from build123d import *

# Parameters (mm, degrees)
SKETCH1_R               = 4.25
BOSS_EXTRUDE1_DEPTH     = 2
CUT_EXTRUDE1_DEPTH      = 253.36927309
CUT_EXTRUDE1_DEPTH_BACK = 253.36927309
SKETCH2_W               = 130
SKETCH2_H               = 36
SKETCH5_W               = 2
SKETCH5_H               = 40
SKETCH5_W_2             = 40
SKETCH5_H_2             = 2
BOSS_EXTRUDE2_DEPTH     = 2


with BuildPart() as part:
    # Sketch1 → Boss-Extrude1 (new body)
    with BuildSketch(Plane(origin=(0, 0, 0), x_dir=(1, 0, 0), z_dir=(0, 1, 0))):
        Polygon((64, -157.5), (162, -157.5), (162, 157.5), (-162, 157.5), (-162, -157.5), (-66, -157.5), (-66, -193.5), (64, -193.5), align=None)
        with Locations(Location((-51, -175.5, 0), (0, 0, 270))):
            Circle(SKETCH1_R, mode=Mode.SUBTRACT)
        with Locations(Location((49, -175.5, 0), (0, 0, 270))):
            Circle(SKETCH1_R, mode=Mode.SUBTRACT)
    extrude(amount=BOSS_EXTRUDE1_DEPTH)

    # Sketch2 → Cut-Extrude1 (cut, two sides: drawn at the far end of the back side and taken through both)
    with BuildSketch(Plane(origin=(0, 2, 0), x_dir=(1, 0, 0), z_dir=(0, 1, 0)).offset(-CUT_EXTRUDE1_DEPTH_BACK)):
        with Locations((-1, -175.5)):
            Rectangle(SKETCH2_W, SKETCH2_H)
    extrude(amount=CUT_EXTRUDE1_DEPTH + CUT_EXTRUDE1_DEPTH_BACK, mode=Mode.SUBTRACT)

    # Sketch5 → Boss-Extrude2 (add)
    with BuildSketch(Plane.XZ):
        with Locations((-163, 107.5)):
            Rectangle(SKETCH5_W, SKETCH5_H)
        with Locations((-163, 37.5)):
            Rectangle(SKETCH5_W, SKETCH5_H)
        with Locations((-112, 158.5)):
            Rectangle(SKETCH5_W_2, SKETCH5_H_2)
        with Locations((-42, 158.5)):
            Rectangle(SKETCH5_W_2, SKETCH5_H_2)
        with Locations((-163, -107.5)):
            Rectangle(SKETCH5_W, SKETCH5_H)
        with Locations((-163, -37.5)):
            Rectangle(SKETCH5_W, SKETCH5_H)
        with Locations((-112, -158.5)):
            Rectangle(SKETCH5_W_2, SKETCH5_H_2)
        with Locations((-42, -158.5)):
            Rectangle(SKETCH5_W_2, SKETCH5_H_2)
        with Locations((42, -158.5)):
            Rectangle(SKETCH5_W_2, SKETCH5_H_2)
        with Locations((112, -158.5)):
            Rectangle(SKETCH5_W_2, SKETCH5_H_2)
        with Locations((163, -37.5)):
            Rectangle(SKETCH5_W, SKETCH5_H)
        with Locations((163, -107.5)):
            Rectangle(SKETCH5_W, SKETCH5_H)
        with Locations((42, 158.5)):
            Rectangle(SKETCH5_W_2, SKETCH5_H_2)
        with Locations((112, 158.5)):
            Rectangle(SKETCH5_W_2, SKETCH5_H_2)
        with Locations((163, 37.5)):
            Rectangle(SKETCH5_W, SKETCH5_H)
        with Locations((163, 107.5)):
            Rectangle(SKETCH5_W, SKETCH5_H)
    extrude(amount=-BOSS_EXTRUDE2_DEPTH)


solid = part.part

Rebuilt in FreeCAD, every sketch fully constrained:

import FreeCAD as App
import Part
import Sketcher

V = App.Vector

doc = App.newDocument("Part")
params = doc.addObject("Spreadsheet::Sheet", "Params")
for row, (alias, value) in enumerate([
    ("sketch1_diameter", "8.5 mm"),
    ("sketch1_width", "98 mm"),
    ("sketch1_width2", "324 mm"),
    ("sketch1_width3", "96 mm"),
    ("sketch1_height", "315 mm"),
    ("pad1_length", "2 mm"),
    ("sketch2_width", "130 mm"),
    ("sketch2_height", "36 mm"),
    ("sketch3_width", "2 mm"),
    ("sketch3_width2", "40 mm"),
    ("pad2_length", "2 mm"),
], start=1):
    params.set(f"A{row}", alias)
    params.set(f"B{row}", "=" + value)
    params.setAlias(f"B{row}", alias)

body = doc.addObject("PartDesign::Body", "Body")

sketch1 = body.newObject("Sketcher::SketchObject", "Sketch")
sketch1.AttachmentSupport = (doc.getObject("XZ_Plane"), [""])
sketch1.MapMode = "FlatFace"
sketch1.addGeometry(Part.LineSegment(V(64, 157.5, 0), V(162, 157.5, 0)), False)
sketch1.addGeometry(Part.LineSegment(V(162, 157.5, 0), V(162, -157.5, 0)), False)
sketch1.addGeometry(Part.LineSegment(V(162, -157.5, 0), V(-162, -157.5, 0)), False)
sketch1.addGeometry(Part.LineSegment(V(-162, -157.5, 0), V(-162, 157.5, 0)), False)
sketch1.addGeometry(Part.LineSegment(V(-162, 157.5, 0), V(-66, 157.5, 0)), False)
sketch1.addGeometry(Part.LineSegment(V(-66, 157.5, 0), V(-66, 193.5, 0)), False)
sketch1.addGeometry(Part.LineSegment(V(-66, 193.5, 0), V(64, 193.5, 0)), False)
sketch1.addGeometry(Part.LineSegment(V(64, 193.5, 0), V(64, 157.5, 0)), False)
sketch1.addGeometry(Part.Circle(V(-51, 175.5, 0), V(0, 0, 1), 4.25), False)
sketch1.addGeometry(Part.Circle(V(49, 175.5, 0), V(0, 0, 1), 4.25), False)
sketch1.addConstraint(Sketcher.Constraint("Coincident", 0, 2, 1, 1))
sketch1.addConstraint(Sketcher.Constraint("Coincident", 1, 2, 2, 1))
sketch1.addConstraint(Sketcher.Constraint("Coincident", 2, 2, 3, 1))
sketch1.addConstraint(Sketcher.Constraint("Coincident", 3, 2, 4, 1))
sketch1.addConstraint(Sketcher.Constraint("Coincident", 4, 2, 5, 1))
sketch1.addConstraint(Sketcher.Constraint("Coincident", 5, 2, 6, 1))
sketch1.addConstraint(Sketcher.Constraint("Coincident", 6, 2, 7, 1))
sketch1.addConstraint(Sketcher.Constraint("Coincident", 7, 2, 0, 1))
sketch1.addConstraint(Sketcher.Constraint("Horizontal", 0))
sketch1.addConstraint(Sketcher.Constraint("Vertical", 1))
sketch1.addConstraint(Sketcher.Constraint("Horizontal", 2))
sketch1.addConstraint(Sketcher.Constraint("Vertical", 3))
sketch1.addConstraint(Sketcher.Constraint("Horizontal", 4))
sketch1.addConstraint(Sketcher.Constraint("Vertical", 5))
sketch1.addConstraint(Sketcher.Constraint("Horizontal", 6))
sketch1.addConstraint(Sketcher.Constraint("Vertical", 7))
sketch1.addConstraint(Sketcher.Constraint("Equal", 8, 9))
sketch1.addConstraint(Sketcher.Constraint("Symmetric", 0, 2, 2, 2, -1, 1))
sketch1.addConstraint(Sketcher.Constraint("Horizontal", 8, 3, 9, 3))
sketch1.addConstraint(Sketcher.Constraint("Horizontal", 0, 2, 3, 2))
sketch1.addConstraint(Sketcher.Constraint("Diameter", 8, 8.5))
sketch1.addConstraint(Sketcher.Constraint("DistanceX", 0, 1, 0, 2, 98.0))
sketch1.addConstraint(Sketcher.Constraint("DistanceX", 2, 2, 2, 1, 324.0))
sketch1.addConstraint(Sketcher.Constraint("DistanceX", 4, 1, 4, 2, 96.0))
sketch1.addConstraint(Sketcher.Constraint("DistanceY", 1, 2, 1, 1, 315.0))
sketch1.addConstraint(Sketcher.Constraint("DistanceY", 5, 1, 5, 2, 36.0))
sketch1.addConstraint(Sketcher.Constraint("DistanceX", 8, 3, -1, 1, 51.0))
sketch1.addConstraint(Sketcher.Constraint("DistanceX", -1, 1, 9, 3, 49.0))
sketch1.addConstraint(Sketcher.Constraint("DistanceY", 0, 2, 9, 3, 18.0))
sketch1.setExpression("Constraints[20]", "Params.sketch1_diameter")
sketch1.setExpression("Constraints[21]", "Params.sketch1_width")
sketch1.setExpression("Constraints[22]", "Params.sketch1_width2")
sketch1.setExpression("Constraints[23]", "Params.sketch1_width3")
sketch1.setExpression("Constraints[24]", "Params.sketch1_height")
pad1 = body.newObject("PartDesign::Pad", "Pad")
pad1.Profile = sketch1
pad1.setExpression("Length", "Params.pad1_length")
pad1.Reversed = True

sketch2 = body.newObject("Sketcher::SketchObject", "Sketch001")
sketch2.AttachmentSupport = (doc.getObject("XZ_Plane"), [""])
sketch2.MapMode = "FlatFace"
sketch2.AttachmentOffset = App.Placement(V(0, 0, -2), App.Rotation())
sketch2.addGeometry(Part.LineSegment(V(-66, 157.5, 0), V(-66, 193.5, 0)), False)
sketch2.addGeometry(Part.LineSegment(V(-66, 193.5, 0), V(64, 193.5, 0)), False)
sketch2.addGeometry(Part.LineSegment(V(64, 193.5, 0), V(64, 157.5, 0)), False)
sketch2.addGeometry(Part.LineSegment(V(64, 157.5, 0), V(-66, 157.5, 0)), False)
sketch2.addConstraint(Sketcher.Constraint("Coincident", 0, 2, 1, 1))
sketch2.addConstraint(Sketcher.Constraint("Coincident", 1, 2, 2, 1))
sketch2.addConstraint(Sketcher.Constraint("Coincident", 2, 2, 3, 1))
sketch2.addConstraint(Sketcher.Constraint("Coincident", 3, 2, 0, 1))
sketch2.addConstraint(Sketcher.Constraint("Vertical", 0))
sketch2.addConstraint(Sketcher.Constraint("Horizontal", 1))
sketch2.addConstraint(Sketcher.Constraint("Vertical", 2))
sketch2.addConstraint(Sketcher.Constraint("Horizontal", 3))
sketch2.addConstraint(Sketcher.Constraint("DistanceX", 1, 1, 1, 2, 130.0))
sketch2.addConstraint(Sketcher.Constraint("DistanceY", 0, 1, 0, 2, 36.0))
sketch2.addConstraint(Sketcher.Constraint("DistanceX", 0, 2, -1, 1, 66.0))
sketch2.addConstraint(Sketcher.Constraint("DistanceY", -1, 1, 0, 2, 193.5))
sketch2.setExpression("Constraints[8]", "Params.sketch2_width")
sketch2.setExpression("Constraints[9]", "Params.sketch2_height")
pocket1 = body.newObject("PartDesign::Pocket", "Pocket")
pocket1.Profile = sketch2
pocket1.Type = "ThroughAll"
pocket1.Midplane = True

sketch3 = body.newObject("Sketcher::SketchObject", "Sketch002")
sketch3.AttachmentSupport = (doc.getObject("XZ_Plane"), [""])
sketch3.MapMode = "FlatFace"
sketch3.addGeometry(Part.LineSegment(V(-164, 127.5, 0), V(-164, 87.5, 0)), False)
sketch3.addGeometry(Part.LineSegment(V(-164, 87.5, 0), V(-162, 87.5, 0)), False)
sketch3.addGeometry(Part.LineSegment(V(-162, 87.5, 0), V(-162, 127.5, 0)), False)
sketch3.addGeometry(Part.LineSegment(V(-162, 127.5, 0), V(-164, 127.5, 0)), False)
sketch3.addGeometry(Part.LineSegment(V(-164, 57.5, 0), V(-164, 17.5, 0)), False)
sketch3.addGeometry(Part.LineSegment(V(-164, 17.5, 0), V(-162, 17.5, 0)), False)
sketch3.addGeometry(Part.LineSegment(V(-162, 17.5, 0), V(-162, 57.5, 0)), False)
sketch3.addGeometry(Part.LineSegment(V(-162, 57.5, 0), V(-164, 57.5, 0)), False)
sketch3.addGeometry(Part.LineSegment(V(-132, 159.5, 0), V(-132, 157.5, 0)), False)
sketch3.addGeometry(Part.LineSegment(V(-132, 157.5, 0), V(-92, 157.5, 0)), False)
sketch3.addGeometry(Part.LineSegment(V(-92, 157.5, 0), V(-92, 159.5, 0)), False)
sketch3.addGeometry(Part.LineSegment(V(-92, 159.5, 0), V(-132, 159.5, 0)), False)
sketch3.addGeometry(Part.LineSegment(V(-62, 159.5, 0), V(-62, 157.5, 0)), False)
sketch3.addGeometry(Part.LineSegment(V(-62, 157.5, 0), V(-22, 157.5, 0)), False)
sketch3.addGeometry(Part.LineSegment(V(-22, 157.5, 0), V(-22, 159.5, 0)), False)
sketch3.addGeometry(Part.LineSegment(V(-22, 159.5, 0), V(-62, 159.5, 0)), False)
sketch3.addGeometry(Part.LineSegment(V(-164, -87.5, 0), V(-164, -127.5, 0)), False)
sketch3.addGeometry(Part.LineSegment(V(-164, -127.5, 0), V(-162, -127.5, 0)), False)
sketch3.addGeometry(Part.LineSegment(V(-162, -127.5, 0), V(-162, -87.5, 0)), False)
sketch3.addGeometry(Part.LineSegment(V(-162, -87.5, 0), V(-164, -87.5, 0)), False)
sketch3.addGeometry(Part.LineSegment(V(-164, -17.5, 0), V(-164, -57.5, 0)), False)
sketch3.addGeometry(Part.LineSegment(V(-164, -57.5, 0), V(-162, -57.5, 0)), False)
sketch3.addGeometry(Part.LineSegment(V(-162, -57.5, 0), V(-162, -17.5, 0)), False)
sketch3.addGeometry(Part.LineSegment(V(-162, -17.5, 0), V(-164, -17.5, 0)), False)
sketch3.addGeometry(Part.LineSegment(V(-132, -157.5, 0), V(-132, -159.5, 0)), False)
sketch3.addGeometry(Part.LineSegment(V(-132, -159.5, 0), V(-92, -159.5, 0)), False)
sketch3.addGeometry(Part.LineSegment(V(-92, -159.5, 0), V(-92, -157.5, 0)), False)
sketch3.addGeometry(Part.LineSegment(V(-92, -157.5, 0), V(-132, -157.5, 0)), False)
sketch3.addGeometry(Part.LineSegment(V(-62, -157.5, 0), V(-62, -159.5, 0)), False)
sketch3.addGeometry(Part.LineSegment(V(-62, -159.5, 0), V(-22, -159.5, 0)), False)
sketch3.addGeometry(Part.LineSegment(V(-22, -159.5, 0), V(-22, -157.5, 0)), False)
sketch3.addGeometry(Part.LineSegment(V(-22, -157.5, 0), V(-62, -157.5, 0)), False)
sketch3.addGeometry(Part.LineSegment(V(22, -157.5, 0), V(22, -159.5, 0)), False)
sketch3.addGeometry(Part.LineSegment(V(22, -159.5, 0), V(62, -159.5, 0)), False)
sketch3.addGeometry(Part.LineSegment(V(62, -159.5, 0), V(62, -157.5, 0)), False)
sketch3.addGeometry(Part.LineSegment(V(62, -157.5, 0), V(22, -157.5, 0)), False)
sketch3.addGeometry(Part.LineSegment(V(92, -157.5, 0), V(92, -159.5, 0)), False)
sketch3.addGeometry(Part.LineSegment(V(92, -159.5, 0), V(132, -159.5, 0)), False)
sketch3.addGeometry(Part.LineSegment(V(132, -159.5, 0), V(132, -157.5, 0)), False)
sketch3.addGeometry(Part.LineSegment(V(132, -157.5, 0), V(92, -157.5, 0)), False)
sketch3.addGeometry(Part.LineSegment(V(162, -17.5, 0), V(162, -57.5, 0)), False)
sketch3.addGeometry(Part.LineSegment(V(162, -57.5, 0), V(164, -57.5, 0)), False)
sketch3.addGeometry(Part.LineSegment(V(164, -57.5, 0), V(164, -17.5, 0)), False)
sketch3.addGeometry(Part.LineSegment(V(164, -17.5, 0), V(162, -17.5, 0)), False)
sketch3.addGeometry(Part.LineSegment(V(162, -87.5, 0), V(162, -127.5, 0)), False)
sketch3.addGeometry(Part.LineSegment(V(162, -127.5, 0), V(164, -127.5, 0)), False)
sketch3.addGeometry(Part.LineSegment(V(164, -127.5, 0), V(164, -87.5, 0)), False)
sketch3.addGeometry(Part.LineSegment(V(164, -87.5, 0), V(162, -87.5, 0)), False)
sketch3.addGeometry(Part.LineSegment(V(22, 159.5, 0), V(22, 157.5, 0)), False)
sketch3.addGeometry(Part.LineSegment(V(22, 157.5, 0), V(62, 157.5, 0)), False)
sketch3.addGeometry(Part.LineSegment(V(62, 157.5, 0), V(62, 159.5, 0)), False)
sketch3.addGeometry(Part.LineSegment(V(62, 159.5, 0), V(22, 159.5, 0)), False)
sketch3.addGeometry(Part.LineSegment(V(92, 159.5, 0), V(92, 157.5, 0)), False)
sketch3.addGeometry(Part.LineSegment(V(92, 157.5, 0), V(132, 157.5, 0)), False)
sketch3.addGeometry(Part.LineSegment(V(132, 157.5, 0), V(132, 159.5, 0)), False)
sketch3.addGeometry(Part.LineSegment(V(132, 159.5, 0), V(92, 159.5, 0)), False)
sketch3.addGeometry(Part.LineSegment(V(162, 57.5, 0), V(162, 17.5, 0)), False)
sketch3.addGeometry(Part.LineSegment(V(162, 17.5, 0), V(164, 17.5, 0)), False)
sketch3.addGeometry(Part.LineSegment(V(164, 17.5, 0), V(164, 57.5, 0)), False)
sketch3.addGeometry(Part.LineSegment(V(164, 57.5, 0), V(162, 57.5, 0)), False)
sketch3.addGeometry(Part.LineSegment(V(162, 127.5, 0), V(162, 87.5, 0)), False)
sketch3.addGeometry(Part.LineSegment(V(162, 87.5, 0), V(164, 87.5, 0)), False)
sketch3.addGeometry(Part.LineSegment(V(164, 87.5, 0), V(164, 127.5, 0)), False)
sketch3.addGeometry(Part.LineSegment(V(164, 127.5, 0), V(162, 127.5, 0)), False)
sketch3.addConstraint(Sketcher.Constraint("Coincident", 0, 2, 1, 1))
sketch3.addConstraint(Sketcher.Constraint("Coincident", 1, 2, 2, 1))
sketch3.addConstraint(Sketcher.Constraint("Coincident", 2, 2, 3, 1))
sketch3.addConstraint(Sketcher.Constraint("Coincident", 3, 2, 0, 1))
sketch3.addConstraint(Sketcher.Constraint("Coincident", 4, 2, 5, 1))
sketch3.addConstraint(Sketcher.Constraint("Coincident", 5, 2, 6, 1))
sketch3.addConstraint(Sketcher.Constraint("Coincident", 6, 2, 7, 1))
sketch3.addConstraint(Sketcher.Constraint("Coincident", 7, 2, 4, 1))
sketch3.addConstraint(Sketcher.Constraint("Coincident", 8, 2, 9, 1))
sketch3.addConstraint(Sketcher.Constraint("Coincident", 9, 2, 10, 1))
sketch3.addConstraint(Sketcher.Constraint("Coincident", 10, 2, 11, 1))
sketch3.addConstraint(Sketcher.Constraint("Coincident", 11, 2, 8, 1))
sketch3.addConstraint(Sketcher.Constraint("Coincident", 12, 2, 13, 1))
sketch3.addConstraint(Sketcher.Constraint("Coincident", 13, 2, 14, 1))
sketch3.addConstraint(Sketcher.Constraint("Coincident", 14, 2, 15, 1))
sketch3.addConstraint(Sketcher.Constraint("Coincident", 15, 2, 12, 1))
sketch3.addConstraint(Sketcher.Constraint("Coincident", 16, 2, 17, 1))
sketch3.addConstraint(Sketcher.Constraint("Coincident", 17, 2, 18, 1))
sketch3.addConstraint(Sketcher.Constraint("Coincident", 18, 2, 19, 1))
sketch3.addConstraint(Sketcher.Constraint("Coincident", 19, 2, 16, 1))
sketch3.addConstraint(Sketcher.Constraint("Coincident", 20, 2, 21, 1))
sketch3.addConstraint(Sketcher.Constraint("Coincident", 21, 2, 22, 1))
sketch3.addConstraint(Sketcher.Constraint("Coincident", 22, 2, 23, 1))
sketch3.addConstraint(Sketcher.Constraint("Coincident", 23, 2, 20, 1))
sketch3.addConstraint(Sketcher.Constraint("Coincident", 24, 2, 25, 1))
sketch3.addConstraint(Sketcher.Constraint("Coincident", 25, 2, 26, 1))
sketch3.addConstraint(Sketcher.Constraint("Coincident", 26, 2, 27, 1))
sketch3.addConstraint(Sketcher.Constraint("Coincident", 27, 2, 24, 1))
sketch3.addConstraint(Sketcher.Constraint("Coincident", 28, 2, 29, 1))
sketch3.addConstraint(Sketcher.Constraint("Coincident", 29, 2, 30, 1))
sketch3.addConstraint(Sketcher.Constraint("Coincident", 30, 2, 31, 1))
sketch3.addConstraint(Sketcher.Constraint("Coincident", 31, 2, 28, 1))
sketch3.addConstraint(Sketcher.Constraint("Coincident", 32, 2, 33, 1))
sketch3.addConstraint(Sketcher.Constraint("Coincident", 33, 2, 34, 1))
sketch3.addConstraint(Sketcher.Constraint("Coincident", 34, 2, 35, 1))
sketch3.addConstraint(Sketcher.Constraint("Coincident", 35, 2, 32, 1))
sketch3.addConstraint(Sketcher.Constraint("Coincident", 36, 2, 37, 1))
sketch3.addConstraint(Sketcher.Constraint("Coincident", 37, 2, 38, 1))
sketch3.addConstraint(Sketcher.Constraint("Coincident", 38, 2, 39, 1))
sketch3.addConstraint(Sketcher.Constraint("Coincident", 39, 2, 36, 1))
sketch3.addConstraint(Sketcher.Constraint("Coincident", 40, 2, 41, 1))
sketch3.addConstraint(Sketcher.Constraint("Coincident", 41, 2, 42, 1))
sketch3.addConstraint(Sketcher.Constraint("Coincident", 42, 2, 43, 1))
sketch3.addConstraint(Sketcher.Constraint("Coincident", 43, 2, 40, 1))
sketch3.addConstraint(Sketcher.Constraint("Coincident", 44, 2, 45, 1))
sketch3.addConstraint(Sketcher.Constraint("Coincident", 45, 2, 46, 1))
sketch3.addConstraint(Sketcher.Constraint("Coincident", 46, 2, 47, 1))
sketch3.addConstraint(Sketcher.Constraint("Coincident", 47, 2, 44, 1))
sketch3.addConstraint(Sketcher.Constraint("Coincident", 48, 2, 49, 1))
sketch3.addConstraint(Sketcher.Constraint("Coincident", 49, 2, 50, 1))
sketch3.addConstraint(Sketcher.Constraint("Coincident", 50, 2, 51, 1))
sketch3.addConstraint(Sketcher.Constraint("Coincident", 51, 2, 48, 1))
sketch3.addConstraint(Sketcher.Constraint("Coincident", 52, 2, 53, 1))
sketch3.addConstraint(Sketcher.Constraint("Coincident", 53, 2, 54, 1))
sketch3.addConstraint(Sketcher.Constraint("Coincident", 54, 2, 55, 1))
sketch3.addConstraint(Sketcher.Constraint("Coincident", 55, 2, 52, 1))
sketch3.addConstraint(Sketcher.Constraint("Coincident", 56, 2, 57, 1))
sketch3.addConstraint(Sketcher.Constraint("Coincident", 57, 2, 58, 1))
sketch3.addConstraint(Sketcher.Constraint("Coincident", 58, 2, 59, 1))
sketch3.addConstraint(Sketcher.Constraint("Coincident", 59, 2, 56, 1))
sketch3.addConstraint(Sketcher.Constraint("Coincident", 60, 2, 61, 1))
sketch3.addConstraint(Sketcher.Constraint("Coincident", 61, 2, 62, 1))
sketch3.addConstraint(Sketcher.Constraint("Coincident", 62, 2, 63, 1))
sketch3.addConstraint(Sketcher.Constraint("Coincident", 63, 2, 60, 1))
sketch3.addConstraint(Sketcher.Constraint("Vertical", 0))
sketch3.addConstraint(Sketcher.Constraint("Horizontal", 1))
sketch3.addConstraint(Sketcher.Constraint("Vertical", 2))
sketch3.addConstraint(Sketcher.Constraint("Horizontal", 3))
sketch3.addConstraint(Sketcher.Constraint("Vertical", 4))
sketch3.addConstraint(Sketcher.Constraint("Horizontal", 5))
sketch3.addConstraint(Sketcher.Constraint("Vertical", 6))
sketch3.addConstraint(Sketcher.Constraint("Horizontal", 7))
sketch3.addConstraint(Sketcher.Constraint("Vertical", 8))
sketch3.addConstraint(Sketcher.Constraint("Horizontal", 9))
sketch3.addConstraint(Sketcher.Constraint("Vertical", 10))
sketch3.addConstraint(Sketcher.Constraint("Horizontal", 11))
sketch3.addConstraint(Sketcher.Constraint("Vertical", 12))
sketch3.addConstraint(Sketcher.Constraint("Horizontal", 13))
sketch3.addConstraint(Sketcher.Constraint("Vertical", 14))
sketch3.addConstraint(Sketcher.Constraint("Horizontal", 15))
sketch3.addConstraint(Sketcher.Constraint("Vertical", 16))
sketch3.addConstraint(Sketcher.Constraint("Horizontal", 17))
sketch3.addConstraint(Sketcher.Constraint("Vertical", 18))
sketch3.addConstraint(Sketcher.Constraint("Horizontal", 19))
sketch3.addConstraint(Sketcher.Constraint("Vertical", 20))
sketch3.addConstraint(Sketcher.Constraint("Horizontal", 21))
sketch3.addConstraint(Sketcher.Constraint("Vertical", 22))
sketch3.addConstraint(Sketcher.Constraint("Horizontal", 23))
sketch3.addConstraint(Sketcher.Constraint("Vertical", 24))
sketch3.addConstraint(Sketcher.Constraint("Horizontal", 25))
sketch3.addConstraint(Sketcher.Constraint("Vertical", 26))
sketch3.addConstraint(Sketcher.Constraint("Horizontal", 27))
sketch3.addConstraint(Sketcher.Constraint("Vertical", 28))
sketch3.addConstraint(Sketcher.Constraint("Horizontal", 29))
sketch3.addConstraint(Sketcher.Constraint("Vertical", 30))
sketch3.addConstraint(Sketcher.Constraint("Horizontal", 31))
sketch3.addConstraint(Sketcher.Constraint("Vertical", 32))
sketch3.addConstraint(Sketcher.Constraint("Horizontal", 33))
sketch3.addConstraint(Sketcher.Constraint("Vertical", 34))
sketch3.addConstraint(Sketcher.Constraint("Horizontal", 35))
sketch3.addConstraint(Sketcher.Constraint("Vertical", 36))
sketch3.addConstraint(Sketcher.Constraint("Horizontal", 37))
sketch3.addConstraint(Sketcher.Constraint("Vertical", 38))
sketch3.addConstraint(Sketcher.Constraint("Horizontal", 39))
sketch3.addConstraint(Sketcher.Constraint("Vertical", 40))
sketch3.addConstraint(Sketcher.Constraint("Horizontal", 41))
sketch3.addConstraint(Sketcher.Constraint("Vertical", 42))
sketch3.addConstraint(Sketcher.Constraint("Horizontal", 43))
sketch3.addConstraint(Sketcher.Constraint("Vertical", 44))
sketch3.addConstraint(Sketcher.Constraint("Horizontal", 45))
sketch3.addConstraint(Sketcher.Constraint("Vertical", 46))
sketch3.addConstraint(Sketcher.Constraint("Horizontal", 47))
sketch3.addConstraint(Sketcher.Constraint("Vertical", 48))
sketch3.addConstraint(Sketcher.Constraint("Horizontal", 49))
sketch3.addConstraint(Sketcher.Constraint("Vertical", 50))
sketch3.addConstraint(Sketcher.Constraint("Horizontal", 51))
sketch3.addConstraint(Sketcher.Constraint("Vertical", 52))
sketch3.addConstraint(Sketcher.Constraint("Horizontal", 53))
sketch3.addConstraint(Sketcher.Constraint("Vertical", 54))
sketch3.addConstraint(Sketcher.Constraint("Horizontal", 55))
sketch3.addConstraint(Sketcher.Constraint("Vertical", 56))
sketch3.addConstraint(Sketcher.Constraint("Horizontal", 57))
sketch3.addConstraint(Sketcher.Constraint("Vertical", 58))
sketch3.addConstraint(Sketcher.Constraint("Horizontal", 59))
sketch3.addConstraint(Sketcher.Constraint("Vertical", 60))
sketch3.addConstraint(Sketcher.Constraint("Horizontal", 61))
sketch3.addConstraint(Sketcher.Constraint("Vertical", 62))
sketch3.addConstraint(Sketcher.Constraint("Horizontal", 63))
sketch3.addConstraint(Sketcher.Constraint("Symmetric", 14, 2, 32, 2, -1, 1))
sketch3.addConstraint(Sketcher.Constraint("Symmetric", 12, 2, 34, 2, -1, 1))
sketch3.addConstraint(Sketcher.Constraint("Symmetric", 10, 2, 36, 2, -1, 1))
sketch3.addConstraint(Sketcher.Constraint("Symmetric", 8, 2, 38, 2, -1, 1))
sketch3.addConstraint(Sketcher.Constraint("Symmetric", 6, 2, 40, 2, -1, 1))
sketch3.addConstraint(Sketcher.Constraint("Symmetric", 4, 2, 42, 2, -1, 1))
sketch3.addConstraint(Sketcher.Constraint("Symmetric", 2, 2, 44, 2, -1, 1))
sketch3.addConstraint(Sketcher.Constraint("Symmetric", 0, 2, 46, 2, -1, 1))
sketch3.addConstraint(Sketcher.Constraint("Symmetric", 30, 2, 48, 2, -1, 1))
sketch3.addConstraint(Sketcher.Constraint("Symmetric", 28, 2, 50, 2, -1, 1))
sketch3.addConstraint(Sketcher.Constraint("Symmetric", 26, 2, 52, 2, -1, 1))
sketch3.addConstraint(Sketcher.Constraint("Symmetric", 24, 2, 54, 2, -1, 1))
sketch3.addConstraint(Sketcher.Constraint("Symmetric", 22, 2, 56, 2, -1, 1))
sketch3.addConstraint(Sketcher.Constraint("Symmetric", 20, 2, 58, 2, -1, 1))
sketch3.addConstraint(Sketcher.Constraint("Symmetric", 18, 2, 60, 2, -1, 1))
sketch3.addConstraint(Sketcher.Constraint("Symmetric", 16, 2, 62, 2, -1, 1))
sketch3.addConstraint(Sketcher.Constraint("Symmetric", 29, 2, 32, 2, -2))
sketch3.addConstraint(Sketcher.Constraint("Symmetric", 31, 2, 34, 2, -2))
sketch3.addConstraint(Sketcher.Constraint("Symmetric", 25, 2, 36, 2, -2))
sketch3.addConstraint(Sketcher.Constraint("Symmetric", 27, 2, 38, 2, -2))
sketch3.addConstraint(Sketcher.Constraint("Symmetric", 21, 2, 40, 2, -2))
sketch3.addConstraint(Sketcher.Constraint("Symmetric", 23, 2, 42, 2, -2))
sketch3.addConstraint(Sketcher.Constraint("Symmetric", 17, 2, 44, 2, -2))
sketch3.addConstraint(Sketcher.Constraint("Symmetric", 19, 2, 46, 2, -2))
sketch3.addConstraint(Sketcher.Constraint("Horizontal", 9, 2, 12, 2))
sketch3.addConstraint(Sketcher.Constraint("Horizontal", 11, 2, 14, 2))
sketch3.addConstraint(Sketcher.Constraint("Vertical", 3, 2, 4, 2))
sketch3.addConstraint(Sketcher.Constraint("Vertical", 2, 2, 5, 2))
sketch3.addConstraint(Sketcher.Constraint("Equal", 11, 13))
sketch3.addConstraint(Sketcher.Constraint("Equal", 55, 0))
sketch3.addConstraint(Sketcher.Constraint("Equal", 2, 4))
sketch3.addConstraint(Sketcher.Constraint("Equal", 63, 8))
sketch3.addConstraint(Sketcher.Constraint("DistanceX", 1, 1, 1, 2, 2.0))
sketch3.addConstraint(Sketcher.Constraint("DistanceX", 9, 1, 9, 2, 40.0))
sketch3.addConstraint(Sketcher.Constraint("DistanceX", 0, 2, -1, 1, 164.0))
sketch3.addConstraint(Sketcher.Constraint("DistanceX", 8, 2, -1, 1, 132.0))
sketch3.addConstraint(Sketcher.Constraint("DistanceX", 12, 2, -1, 1, 62.0))
sketch3.addConstraint(Sketcher.Constraint("DistanceY", -1, 1, 0, 2, 87.5))
sketch3.addConstraint(Sketcher.Constraint("DistanceY", -1, 1, 4, 2, 17.5))
sketch3.addConstraint(Sketcher.Constraint("DistanceY", -1, 1, 8, 2, 157.5))
sketch3.setExpression("Constraints[160]", "Params.sketch3_width")
sketch3.setExpression("Constraints[161]", "Params.sketch3_width2")
pad2 = body.newObject("PartDesign::Pad", "Pad001")
pad2.Profile = sketch3
pad2.setExpression("Length", "Params.pad2_length")
pad2.Reversed = True

doc.recompute()
